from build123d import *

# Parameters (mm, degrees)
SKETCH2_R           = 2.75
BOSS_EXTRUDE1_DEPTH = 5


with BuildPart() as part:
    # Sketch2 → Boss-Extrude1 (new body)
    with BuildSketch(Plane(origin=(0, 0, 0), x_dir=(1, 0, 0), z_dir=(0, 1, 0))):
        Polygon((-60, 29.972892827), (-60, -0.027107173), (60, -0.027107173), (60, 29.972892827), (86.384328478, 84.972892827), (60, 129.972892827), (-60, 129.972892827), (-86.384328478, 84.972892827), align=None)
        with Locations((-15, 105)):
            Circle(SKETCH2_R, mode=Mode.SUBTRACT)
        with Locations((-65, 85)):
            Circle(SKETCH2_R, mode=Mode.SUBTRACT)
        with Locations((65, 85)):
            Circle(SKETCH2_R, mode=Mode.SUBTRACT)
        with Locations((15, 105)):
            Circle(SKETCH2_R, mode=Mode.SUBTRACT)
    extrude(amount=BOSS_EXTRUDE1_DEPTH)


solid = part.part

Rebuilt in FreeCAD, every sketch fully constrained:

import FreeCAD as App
import Part
import Sketcher
from FreeCAD import Vector


def add_polygon(sketch, points):
    """Adds a closed chain of lines whose ends are joined by coincident constraints."""
    first, n = sketch.GeometryCount, len(points)
    for a, b in zip(points, points[1:] + points[:1]):
        sketch.addGeometry(Part.LineSegment(App.Vector(*a, 0), App.Vector(*b, 0)), False)
    for i in range(n):
        sketch.addConstraint(Sketcher.Constraint("Coincident", first + i, 2, first + (i + 1) % n, 1))

doc = App.newDocument("Part")
body = doc.addObject("PartDesign::Body", "Body")

# Sketch on XZ plane
sketch1 = body.newObject("Sketcher::SketchObject", "Sketch")
sketch1.AttachmentSupport = (doc.getObject("XZ_Plane"), [""])
sketch1.MapMode = "FlatFace"
add_polygon(sketch1, [(-60, -30), (-60, 0), (60, 0), (60, -30), (86.4, -85), (60, -130), (-60, -130), (-86.4, -85)])  # lines 0-7
sketch1.addGeometry(Part.Circle(Vector(-65, -85, 0), Vector(0, 0, 1), 2.8), False)  # 8
sketch1.addGeometry(Part.Circle(Vector(65, -85, 0), Vector(0, 0, 1), 2.8), False)  # 9
sketch1.addGeometry(Part.Circle(Vector(-15, -105, 0), Vector(0, 0, 1), 2.8), False)  # 10
sketch1.addGeometry(Part.Circle(Vector(15, -105, 0), Vector(0, 0, 1), 2.8), False)  # 11
sketch1.addConstraint([
    Sketcher.Constraint("Vertical", 0),
    Sketcher.Constraint("Horizontal", 1),
    Sketcher.Constraint("Vertical", 2),
    Sketcher.Constraint("Horizontal", 5),
    Sketcher.Constraint("Equal", 8, 9),
    Sketcher.Constraint("Equal", 9, 10),
    Sketcher.Constraint("Equal", 10, 11),
    Sketcher.Constraint("Symmetric", 8, 3, 9, 3, -2),
    Sketcher.Constraint("Symmetric", 10, 3, 11, 3, -2),
    Sketcher.Constraint("Symmetric", 3, 2, 6, 2, -2),
    Sketcher.Constraint("Symmetric", 2, 2, 7, 2, -2),
    Sketcher.Constraint("Vertical", 2, 2, 4, 2),
    Sketcher.Constraint("Vertical", 0, 2, 5, 2),
    Sketcher.Constraint("Diameter", 8, 5.5),
    Sketcher.Constraint("DistanceX", 1, 1, 1, 2, 120.0),
    Sketcher.Constraint("DistanceY", 0, 1, 0, 2, 30.0),
    Sketcher.Constraint("DistanceX", 8, 3, -1, 1, 65.0),
    Sketcher.Constraint("DistanceY", 8, 3, -1, 1, 85.0),
    Sketcher.Constraint("DistanceX", 10, 3, -1, 1, 15.0),
    Sketcher.Constraint("DistanceY", 10, 3, -1, 1, 105.0),
    Sketcher.Constraint("DistanceY", 3, 2, 2, 2, 55.0),
    Sketcher.Constraint("DistanceY", 4, 2, 3, 2, 45.0),
    Sketcher.Constraint("Distance", 3, 61.001088),
    Sketcher.Constraint("DistanceY", -1, 1, 0, 2, 0.027107),
])
pad1 = body.newObject("PartDesign::Pad", "Pad")
pad1.Profile = sketch1
pad1.Length = 5
pad1.Reversed = True

doc.recompute()
